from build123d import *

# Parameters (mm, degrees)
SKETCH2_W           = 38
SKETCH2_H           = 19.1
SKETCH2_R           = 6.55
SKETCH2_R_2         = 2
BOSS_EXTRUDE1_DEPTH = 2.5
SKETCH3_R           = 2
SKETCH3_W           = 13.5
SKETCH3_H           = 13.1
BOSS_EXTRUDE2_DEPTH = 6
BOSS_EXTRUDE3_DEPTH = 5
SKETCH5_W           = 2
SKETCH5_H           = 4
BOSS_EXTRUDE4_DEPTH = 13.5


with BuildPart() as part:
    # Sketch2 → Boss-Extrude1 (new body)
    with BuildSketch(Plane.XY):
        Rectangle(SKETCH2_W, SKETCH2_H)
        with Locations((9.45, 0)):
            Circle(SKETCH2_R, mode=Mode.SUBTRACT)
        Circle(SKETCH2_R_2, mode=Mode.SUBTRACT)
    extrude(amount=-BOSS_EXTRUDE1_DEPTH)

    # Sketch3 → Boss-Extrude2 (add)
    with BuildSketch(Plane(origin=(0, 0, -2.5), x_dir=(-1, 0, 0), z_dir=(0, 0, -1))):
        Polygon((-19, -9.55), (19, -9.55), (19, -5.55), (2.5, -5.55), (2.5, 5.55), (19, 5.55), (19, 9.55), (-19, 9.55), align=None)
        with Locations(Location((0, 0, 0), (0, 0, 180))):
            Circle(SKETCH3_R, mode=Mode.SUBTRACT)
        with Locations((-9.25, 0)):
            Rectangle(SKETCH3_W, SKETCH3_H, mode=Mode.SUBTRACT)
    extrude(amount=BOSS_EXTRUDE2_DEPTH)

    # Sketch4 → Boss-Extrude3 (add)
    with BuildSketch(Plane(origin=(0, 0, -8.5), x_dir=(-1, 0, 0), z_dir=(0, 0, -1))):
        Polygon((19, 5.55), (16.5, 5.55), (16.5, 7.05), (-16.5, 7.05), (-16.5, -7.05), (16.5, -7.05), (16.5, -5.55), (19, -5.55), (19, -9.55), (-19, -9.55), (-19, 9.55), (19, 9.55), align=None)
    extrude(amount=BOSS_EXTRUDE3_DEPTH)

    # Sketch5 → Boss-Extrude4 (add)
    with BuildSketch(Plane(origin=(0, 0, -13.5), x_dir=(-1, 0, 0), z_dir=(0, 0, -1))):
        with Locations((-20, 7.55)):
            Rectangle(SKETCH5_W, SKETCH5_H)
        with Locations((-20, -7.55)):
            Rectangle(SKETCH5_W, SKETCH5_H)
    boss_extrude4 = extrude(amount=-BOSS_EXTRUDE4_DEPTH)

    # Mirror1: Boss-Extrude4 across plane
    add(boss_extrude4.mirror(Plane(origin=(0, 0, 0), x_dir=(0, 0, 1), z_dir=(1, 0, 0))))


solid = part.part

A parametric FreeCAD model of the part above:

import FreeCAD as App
import Part
import Sketcher
from FreeCAD import Vector
Q = App.Units.Quantity

doc = App.newDocument("Part")
params = doc.addObject("Spreadsheet::Sheet", "Params")
for row, (alias, value) in enumerate([
    ("sketch1_diameter", "4 mm"),
    ("sketch1_diameter2", "13.1 mm"),
    ("sketch1_width", "38 mm"),
    ("sketch1_height", "19.1 mm"),
    ("pad1_length", "2.5 mm"),
    ("sketch2_diameter", "4 mm"),
    ("sketch2_width", "38 mm"),
    ("sketch2_height", "4 mm"),
    ("sketch2_width2", "16.5 mm"),
    ("sketch2_width3", "13.5 mm"),
    ("pad2_length", "6 mm"),
    ("sketch3_width", "38 mm"),
    ("sketch3_width2", "33 mm"),
    ("sketch3_height", "4 mm"),
    ("sketch3_height2", "19.1 mm"),
    ("sketch3_height3", "1.5 mm"),
    ("pad3_length", "5 mm"),
    ("sketch4_width", "2 mm"),
    ("sketch4_height", "4 mm"),
    ("pad4_length", "13.5 mm"),
], start=1):
    params.set(f"A{row}", alias)
    params.set(f"B{row}", "=" + value)
    params.setAlias(f"B{row}", alias)

body = doc.addObject("PartDesign::Body", "Body")

sketch1 = body.newObject("Sketcher::SketchObject", "Sketch")
sketch1.AttachmentSupport = (doc.getObject("XY_Plane"), [""])
sketch1.MapMode = "FlatFace"
sketch1.addGeometry([
    Part.LineSegment(Vector(-19, 9.6, 0), Vector(-19, -9.6, 0)),
    Part.LineSegment(Vector(-19, -9.6, 0), Vector(19, -9.6, 0)),
    Part.LineSegment(Vector(19, -9.6, 0), Vector(19, 9.6, 0)),
    Part.LineSegment(Vector(19, 9.6, 0), Vector(-19, 9.6, 0)),
    Part.Circle(Vector(0, 0, 0), Vector(0, 0, 1), 2),
    Part.Circle(Vector(9.4, 0, 0), Vector(0, 0, 1), 6.5),
], False)
sketch1.addConstraint([
    Sketcher.Constraint("Coincident", 0, 2, 1, 1),
    Sketcher.Constraint("Coincident", 1, 2, 2, 1),
    Sketcher.Constraint("Coincident", 2, 2, 3, 1),
    Sketcher.Constraint("Coincident", 3, 2, 0, 1),
    Sketcher.Constraint("Vertical", 0),
    Sketcher.Constraint("Horizontal", 1),
    Sketcher.Constraint("Vertical", 2),
    Sketcher.Constraint("Horizontal", 3),
    Sketcher.Constraint("Coincident", 4, 3, -1, 1),
    Sketcher.Constraint("Symmetric", 0, 2, 2, 2, -1, 1),
    Sketcher.Constraint("PointOnObject", 5, 3, -1),
    Sketcher.Constraint("Diameter", 4, Q("4 mm")),
    Sketcher.Constraint("Diameter", 5, Q("13.1 mm")),
    Sketcher.Constraint("DistanceX", 1, 1, 1, 2, Q("38 mm")),
    Sketcher.Constraint("DistanceY", 0, 2, 0, 1, Q("19.1 mm")),
    Sketcher.Constraint("DistanceX", -1, 1, 5, 3, Q("9.45 mm")),
])
sketch1.setExpression("Constraints[11]", "Params.sketch1_diameter")
sketch1.setExpression("Constraints[12]", "Params.sketch1_diameter2")
sketch1.setExpression("Constraints[13]", "Params.sketch1_width")
sketch1.setExpression("Constraints[14]", "Params.sketch1_height")
pad1 = body.newObject("PartDesign::Pad", "Pad")
pad1.Profile = sketch1
pad1.setExpression("Length", "Params.pad1_length")
pad1.Reversed = True

sketch2 = body.newObject("Sketcher::SketchObject", "Sketch001")
sketch2.AttachmentSupport = (doc.getObject("XY_Plane"), [""])
sketch2.MapMode = "FlatFace"
sketch2.AttachmentOffset = App.Placement(Vector(0, 0, -2.5), App.Rotation())
sketch2.addGeometry([
    Part.LineSegment(Vector(19, -9.6, 0), Vector(-19, -9.6, 0)),
    Part.LineSegment(Vector(-19, -9.6, 0), Vector(-19, -5.5, 0)),
    Part.LineSegment(Vector(-19, -5.5, 0), Vector(-2.5, -5.5, 0)),
    Part.LineSegment(Vector(-2.5, -5.5, 0), Vector(-2.5, 5.5, 0)),
    Part.LineSegment(Vector(-2.5, 5.5, 0), Vector(-19, 5.5, 0)),
    Part.LineSegment(Vector(-19, 5.5, 0), Vector(-19, 9.6, 0)),
    Part.LineSegment(Vector(-19, 9.6, 0), Vector(19, 9.6, 0)),
    Part.LineSegment(Vector(19, 9.6, 0), Vector(19, -9.6, 0)),
    Part.Circle(Vector(0, 0, 0), Vector(0, 0, 1), 2),
    Part.LineSegment(Vector(2.5, -6.5, 0), Vector(16, -6.5, 0)),
    Part.LineSegment(Vector(16, -6.5, 0), Vector(16, 6.5, 0)),
    Part.LineSegment(Vector(16, 6.5, 0), Vector(2.5, 6.5, 0)),
    Part.LineSegment(Vector(2.5, 6.5, 0), Vector(2.5, -6.5, 0)),
], False)
sketch2.addConstraint([
    Sketcher.Constraint("Coincident", 0, 2, 1, 1),
    Sketcher.Constraint("Coincident", 1, 2, 2, 1),
    Sketcher.Constraint("Coincident", 2, 2, 3, 1),
    Sketcher.Constraint("Coincident", 3, 2, 4, 1),
    Sketcher.Constraint("Coincident", 4, 2, 5, 1),
    Sketcher.Constraint("Coincident", 5, 2, 6, 1),
    Sketcher.Constraint("Coincident", 6, 2, 7, 1),
    Sketcher.Constraint("Coincident", 7, 2, 0, 1),
    Sketcher.Constraint("Coincident", 9, 2, 10, 1),
    Sketcher.Constraint("Coincident", 10, 2, 11, 1),
    Sketcher.Constraint("Coincident", 11, 2, 12, 1),
    Sketcher.Constraint("Coincident", 12, 2, 9, 1),
    Sketcher.Constraint("Horizontal", 0),
    Sketcher.Constraint("Vertical", 1),
    Sketcher.Constraint("Horizontal", 2),
    Sketcher.Constraint("Vertical", 3),
    Sketcher.Constraint("Horizontal", 4),
    Sketcher.Constraint("Vertical", 5),
    Sketcher.Constraint("Horizontal", 6),
    Sketcher.Constraint("Vertical", 7),
    Sketcher.Constraint("Horizontal", 9),
    Sketcher.Constraint("Vertical", 10),
    Sketcher.Constraint("Horizontal", 11),
    Sketcher.Constraint("Vertical", 12),
    Sketcher.Constraint("Coincident", 8, 3, -1, 1),
    Sketcher.Constraint("Symmetric", 0, 2, 6, 2, -1, 1),
    Sketcher.Constraint("Symmetric", 1, 2, 4, 2, -1),
    Sketcher.Constraint("Diameter", 8, Q("4 mm")),
    Sketcher.Constraint("DistanceX", 0, 2, 0, 1, Q("38 mm")),
    Sketcher.Constraint("DistanceY", 1, 1, 1, 2, Q("4 mm")),
    Sketcher.Constraint("DistanceX", 2, 1, 2, 2, Q("16.5 mm")),
    Sketcher.Constraint("DistanceX", 9, 1, 9, 2, Q("13.5 mm")),
    Sketcher.Constraint("DistanceY", 3, 1, 3, 2, Q("11.1 mm")),
    Sketcher.Constraint("DistanceY", 10, 1, 10, 2, Q("13.1 mm")),
    Sketcher.Constraint("DistanceX", -1, 1, 9, 2, Q("16 mm")),
    Sketcher.Constraint("DistanceY", 7, 2, 9, 2, Q("3 mm")),
])
sketch2.setExpression("Constraints[27]", "Params.sketch2_diameter")
sketch2.setExpression("Constraints[28]", "Params.sketch2_width")
sketch2.setExpression("Constraints[29]", "Params.sketch2_height")
sketch2.setExpression("Constraints[30]", "Params.sketch2_width2")
sketch2.setExpression("Constraints[31]", "Params.sketch2_width3")
pad2 = body.newObject("PartDesign::Pad", "Pad001")
pad2.Profile = sketch2
pad2.setExpression("Length", "Params.pad2_length")
pad2.Reversed = True

sketch3 = body.newObject("Sketcher::SketchObject", "Sketch002")
sketch3.AttachmentSupport = (doc.getObject("XY_Plane"), [""])
sketch3.MapMode = "FlatFace"
sketch3.AttachmentOffset = App.Placement(Vector(0, 0, -8.5), App.Rotation())
sketch3.addGeometry([
    Part.LineSegment(Vector(-16.5, 5.5, 0), Vector(-19, 5.5, 0)),
    Part.LineSegment(Vector(-19, 5.5, 0), Vector(-19, 9.6, 0)),
    Part.LineSegment(Vector(-19, 9.6, 0), Vector(19, 9.6, 0)),
    Part.LineSegment(Vector(19, 9.6, 0), Vector(19, -9.6, 0)),
    Part.LineSegment(Vector(19, -9.6, 0), Vector(-19, -9.6, 0)),
    Part.LineSegment(Vector(-19, -9.6, 0), Vector(-19, -5.5, 0)),
    Part.LineSegment(Vector(-19, -5.5, 0), Vector(-16.5, -5.5, 0)),
    Part.LineSegment(Vector(-16.5, -5.5, 0), Vector(-16.5, -7, 0)),
    Part.LineSegment(Vector(-16.5, -7, 0), Vector(16.5, -7, 0)),
    Part.LineSegment(Vector(16.5, -7, 0), Vector(16.5, 7, 0)),
    Part.LineSegment(Vector(16.5, 7, 0), Vector(-16.5, 7, 0)),
    Part.LineSegment(Vector(-16.5, 7, 0), Vector(-16.5, 5.5, 0)),
], False)
sketch3.addConstraint([
    Sketcher.Constraint("Coincident", 0, 2, 1, 1),
    Sketcher.Constraint("Coincident", 1, 2, 2, 1),
    Sketcher.Constraint("Coincident", 2, 2, 3, 1),
    Sketcher.Constraint("Coincident", 3, 2, 4, 1),
    Sketcher.Constraint("Coincident", 4, 2, 5, 1),
    Sketcher.Constraint("Coincident", 5, 2, 6, 1),
    Sketcher.Constraint("Coincident", 6, 2, 7, 1),
    Sketcher.Constraint("Coincident", 7, 2, 8, 1),
    Sketcher.Constraint("Coincident", 8, 2, 9, 1),
    Sketcher.Constraint("Coincident", 9, 2, 10, 1),
    Sketcher.Constraint("Coincident", 10, 2, 11, 1),
    Sketcher.Constraint("Coincident", 11, 2, 0, 1),
    Sketcher.Constraint("Horizontal", 0),
    Sketcher.Constraint("Vertical", 1),
    Sketcher.Constraint("Horizontal", 2),
    Sketcher.Constraint("Vertical", 3),
    Sketcher.Constraint("Horizontal", 4),
    Sketcher.Constraint("Vertical", 5),
    Sketcher.Constraint("Horizontal", 6),
    Sketcher.Constraint("Vertical", 7),
    Sketcher.Constraint("Horizontal", 8),
    Sketcher.Constraint("Vertical", 9),
    Sketcher.Constraint("Horizontal", 10),
    Sketcher.Constraint("Vertical", 11),
    Sketcher.Constraint("Symmetric", 1, 2, 3, 2, -1, 1),
    Sketcher.Constraint("Symmetric", 7, 2, 9, 2, -1, 1),
    Sketcher.Constraint("Symmetric", 0, 2, 5, 2, -1),
    Sketcher.Constraint("Vertical", 7, 2, 10, 2),
    Sketcher.Constraint("DistanceX", 2, 1, 2, 2, Q("38 mm")),
    Sketcher.Constraint("DistanceX", 8, 1, 8, 2, Q("33 mm")),
    Sketcher.Constraint("DistanceY", 1, 1, 1, 2, Q("4 mm")),
    Sketcher.Constraint("DistanceY", 3, 2, 3, 1, Q("19.1 mm")),
    Sketcher.Constraint("DistanceY", 7, 2, 7, 1, Q("1.5 mm")),
])
sketch3.setExpression("Constraints[28]", "Params.sketch3_width")
sketch3.setExpression("Constraints[29]", "Params.sketch3_width2")
sketch3.setExpression("Constraints[30]", "Params.sketch3_height")
sketch3.setExpression("Constraints[31]", "Params.sketch3_height2")
sketch3.setExpression("Constraints[32]", "Params.sketch3_height3")
pad3 = body.newObject("PartDesign::Pad", "Pad002")
pad3.Profile = sketch3
pad3.setExpression("Length", "Params.pad3_length")
pad3.Reversed = True

sketch4 = body.newObject("Sketcher::SketchObject", "Sketch003")
sketch4.AttachmentSupport = (doc.getObject("XY_Plane"), [""])
sketch4.MapMode = "FlatFace"
sketch4.AttachmentOffset = App.Placement(Vector(0, 0, -13.5), App.Rotation())
sketch4.addGeometry([
    Part.LineSegment(Vector(21, 9.6, 0), Vector(21, 5.5, 0)),
    Part.LineSegment(Vector(21, 5.5, 0), Vector(19, 5.5, 0)),
    Part.LineSegment(Vector(19, 5.5, 0), Vector(19, 9.6, 0)),
    Part.LineSegment(Vector(19, 9.6, 0), Vector(21, 9.6, 0)),
    Part.LineSegment(Vector(21, -5.5, 0), Vector(21, -9.6, 0)),
    Part.LineSegment(Vector(21, -9.6, 0), Vector(19, -9.6, 0)),
    Part.LineSegment(Vector(19, -9.6, 0), Vector(19, -5.5, 0)),
    Part.LineSegment(Vector(19, -5.5, 0), Vector(21, -5.5, 0)),
], False)
sketch4.addConstraint([
    Sketcher.Constraint("Coincident", 0, 2, 1, 1),
    Sketcher.Constraint("Coincident", 1, 2, 2, 1),
    Sketcher.Constraint("Coincident", 2, 2, 3, 1),
    Sketcher.Constraint("Coincident", 3, 2, 0, 1),
    Sketcher.Constraint("Coincident", 4, 2, 5, 1),
    Sketcher.Constraint("Coincident", 5, 2, 6, 1),
    Sketcher.Constraint("Coincident", 6, 2, 7, 1),
    Sketcher.Constraint("Coincident", 7, 2, 4, 1),
    Sketcher.Constraint("Vertical", 0),
    Sketcher.Constraint("Horizontal", 1),
    Sketcher.Constraint("Vertical", 2),
    Sketcher.Constraint("Horizontal", 3),
    Sketcher.Constraint("Vertical", 4),
    Sketcher.Constraint("Horizontal", 5),
    Sketcher.Constraint("Vertical", 6),
    Sketcher.Constraint("Horizontal", 7),
    Sketcher.Constraint("Symmetric", 3, 2, 4, 2, -1),
    Sketcher.Constraint("Symmetric", 1, 2, 6, 2, -1),
    Sketcher.Constraint("DistanceX", 1, 2, 1, 1, Q("2 mm")),
    Sketcher.Constraint("DistanceY", 0, 2, 0, 1, Q("4 mm")),
    Sketcher.Constraint("DistanceX", -1, 1, 0, 2, Q("21 mm")),
    Sketcher.Constraint("DistanceY", 4, 2, 0, 2, Q("15.1 mm")),
])
sketch4.setExpression("Constraints[18]", "Params.sketch4_width")
sketch4.setExpression("Constraints[19]", "Params.sketch4_height")
pad4 = body.newObject("PartDesign::Pad", "Pad003")
pad4.Profile = sketch4
pad4.setExpression("Length", "Params.pad4_length")
doc.recompute()

mirrored = body.newObject("PartDesign::Mirrored", "Mirrored")
mirrored.Originals = [pad4]
mirrored.MirrorPlane = (doc.getObject("YZ_Plane"), [""])
body.Tip = mirrored

doc.recompute()
